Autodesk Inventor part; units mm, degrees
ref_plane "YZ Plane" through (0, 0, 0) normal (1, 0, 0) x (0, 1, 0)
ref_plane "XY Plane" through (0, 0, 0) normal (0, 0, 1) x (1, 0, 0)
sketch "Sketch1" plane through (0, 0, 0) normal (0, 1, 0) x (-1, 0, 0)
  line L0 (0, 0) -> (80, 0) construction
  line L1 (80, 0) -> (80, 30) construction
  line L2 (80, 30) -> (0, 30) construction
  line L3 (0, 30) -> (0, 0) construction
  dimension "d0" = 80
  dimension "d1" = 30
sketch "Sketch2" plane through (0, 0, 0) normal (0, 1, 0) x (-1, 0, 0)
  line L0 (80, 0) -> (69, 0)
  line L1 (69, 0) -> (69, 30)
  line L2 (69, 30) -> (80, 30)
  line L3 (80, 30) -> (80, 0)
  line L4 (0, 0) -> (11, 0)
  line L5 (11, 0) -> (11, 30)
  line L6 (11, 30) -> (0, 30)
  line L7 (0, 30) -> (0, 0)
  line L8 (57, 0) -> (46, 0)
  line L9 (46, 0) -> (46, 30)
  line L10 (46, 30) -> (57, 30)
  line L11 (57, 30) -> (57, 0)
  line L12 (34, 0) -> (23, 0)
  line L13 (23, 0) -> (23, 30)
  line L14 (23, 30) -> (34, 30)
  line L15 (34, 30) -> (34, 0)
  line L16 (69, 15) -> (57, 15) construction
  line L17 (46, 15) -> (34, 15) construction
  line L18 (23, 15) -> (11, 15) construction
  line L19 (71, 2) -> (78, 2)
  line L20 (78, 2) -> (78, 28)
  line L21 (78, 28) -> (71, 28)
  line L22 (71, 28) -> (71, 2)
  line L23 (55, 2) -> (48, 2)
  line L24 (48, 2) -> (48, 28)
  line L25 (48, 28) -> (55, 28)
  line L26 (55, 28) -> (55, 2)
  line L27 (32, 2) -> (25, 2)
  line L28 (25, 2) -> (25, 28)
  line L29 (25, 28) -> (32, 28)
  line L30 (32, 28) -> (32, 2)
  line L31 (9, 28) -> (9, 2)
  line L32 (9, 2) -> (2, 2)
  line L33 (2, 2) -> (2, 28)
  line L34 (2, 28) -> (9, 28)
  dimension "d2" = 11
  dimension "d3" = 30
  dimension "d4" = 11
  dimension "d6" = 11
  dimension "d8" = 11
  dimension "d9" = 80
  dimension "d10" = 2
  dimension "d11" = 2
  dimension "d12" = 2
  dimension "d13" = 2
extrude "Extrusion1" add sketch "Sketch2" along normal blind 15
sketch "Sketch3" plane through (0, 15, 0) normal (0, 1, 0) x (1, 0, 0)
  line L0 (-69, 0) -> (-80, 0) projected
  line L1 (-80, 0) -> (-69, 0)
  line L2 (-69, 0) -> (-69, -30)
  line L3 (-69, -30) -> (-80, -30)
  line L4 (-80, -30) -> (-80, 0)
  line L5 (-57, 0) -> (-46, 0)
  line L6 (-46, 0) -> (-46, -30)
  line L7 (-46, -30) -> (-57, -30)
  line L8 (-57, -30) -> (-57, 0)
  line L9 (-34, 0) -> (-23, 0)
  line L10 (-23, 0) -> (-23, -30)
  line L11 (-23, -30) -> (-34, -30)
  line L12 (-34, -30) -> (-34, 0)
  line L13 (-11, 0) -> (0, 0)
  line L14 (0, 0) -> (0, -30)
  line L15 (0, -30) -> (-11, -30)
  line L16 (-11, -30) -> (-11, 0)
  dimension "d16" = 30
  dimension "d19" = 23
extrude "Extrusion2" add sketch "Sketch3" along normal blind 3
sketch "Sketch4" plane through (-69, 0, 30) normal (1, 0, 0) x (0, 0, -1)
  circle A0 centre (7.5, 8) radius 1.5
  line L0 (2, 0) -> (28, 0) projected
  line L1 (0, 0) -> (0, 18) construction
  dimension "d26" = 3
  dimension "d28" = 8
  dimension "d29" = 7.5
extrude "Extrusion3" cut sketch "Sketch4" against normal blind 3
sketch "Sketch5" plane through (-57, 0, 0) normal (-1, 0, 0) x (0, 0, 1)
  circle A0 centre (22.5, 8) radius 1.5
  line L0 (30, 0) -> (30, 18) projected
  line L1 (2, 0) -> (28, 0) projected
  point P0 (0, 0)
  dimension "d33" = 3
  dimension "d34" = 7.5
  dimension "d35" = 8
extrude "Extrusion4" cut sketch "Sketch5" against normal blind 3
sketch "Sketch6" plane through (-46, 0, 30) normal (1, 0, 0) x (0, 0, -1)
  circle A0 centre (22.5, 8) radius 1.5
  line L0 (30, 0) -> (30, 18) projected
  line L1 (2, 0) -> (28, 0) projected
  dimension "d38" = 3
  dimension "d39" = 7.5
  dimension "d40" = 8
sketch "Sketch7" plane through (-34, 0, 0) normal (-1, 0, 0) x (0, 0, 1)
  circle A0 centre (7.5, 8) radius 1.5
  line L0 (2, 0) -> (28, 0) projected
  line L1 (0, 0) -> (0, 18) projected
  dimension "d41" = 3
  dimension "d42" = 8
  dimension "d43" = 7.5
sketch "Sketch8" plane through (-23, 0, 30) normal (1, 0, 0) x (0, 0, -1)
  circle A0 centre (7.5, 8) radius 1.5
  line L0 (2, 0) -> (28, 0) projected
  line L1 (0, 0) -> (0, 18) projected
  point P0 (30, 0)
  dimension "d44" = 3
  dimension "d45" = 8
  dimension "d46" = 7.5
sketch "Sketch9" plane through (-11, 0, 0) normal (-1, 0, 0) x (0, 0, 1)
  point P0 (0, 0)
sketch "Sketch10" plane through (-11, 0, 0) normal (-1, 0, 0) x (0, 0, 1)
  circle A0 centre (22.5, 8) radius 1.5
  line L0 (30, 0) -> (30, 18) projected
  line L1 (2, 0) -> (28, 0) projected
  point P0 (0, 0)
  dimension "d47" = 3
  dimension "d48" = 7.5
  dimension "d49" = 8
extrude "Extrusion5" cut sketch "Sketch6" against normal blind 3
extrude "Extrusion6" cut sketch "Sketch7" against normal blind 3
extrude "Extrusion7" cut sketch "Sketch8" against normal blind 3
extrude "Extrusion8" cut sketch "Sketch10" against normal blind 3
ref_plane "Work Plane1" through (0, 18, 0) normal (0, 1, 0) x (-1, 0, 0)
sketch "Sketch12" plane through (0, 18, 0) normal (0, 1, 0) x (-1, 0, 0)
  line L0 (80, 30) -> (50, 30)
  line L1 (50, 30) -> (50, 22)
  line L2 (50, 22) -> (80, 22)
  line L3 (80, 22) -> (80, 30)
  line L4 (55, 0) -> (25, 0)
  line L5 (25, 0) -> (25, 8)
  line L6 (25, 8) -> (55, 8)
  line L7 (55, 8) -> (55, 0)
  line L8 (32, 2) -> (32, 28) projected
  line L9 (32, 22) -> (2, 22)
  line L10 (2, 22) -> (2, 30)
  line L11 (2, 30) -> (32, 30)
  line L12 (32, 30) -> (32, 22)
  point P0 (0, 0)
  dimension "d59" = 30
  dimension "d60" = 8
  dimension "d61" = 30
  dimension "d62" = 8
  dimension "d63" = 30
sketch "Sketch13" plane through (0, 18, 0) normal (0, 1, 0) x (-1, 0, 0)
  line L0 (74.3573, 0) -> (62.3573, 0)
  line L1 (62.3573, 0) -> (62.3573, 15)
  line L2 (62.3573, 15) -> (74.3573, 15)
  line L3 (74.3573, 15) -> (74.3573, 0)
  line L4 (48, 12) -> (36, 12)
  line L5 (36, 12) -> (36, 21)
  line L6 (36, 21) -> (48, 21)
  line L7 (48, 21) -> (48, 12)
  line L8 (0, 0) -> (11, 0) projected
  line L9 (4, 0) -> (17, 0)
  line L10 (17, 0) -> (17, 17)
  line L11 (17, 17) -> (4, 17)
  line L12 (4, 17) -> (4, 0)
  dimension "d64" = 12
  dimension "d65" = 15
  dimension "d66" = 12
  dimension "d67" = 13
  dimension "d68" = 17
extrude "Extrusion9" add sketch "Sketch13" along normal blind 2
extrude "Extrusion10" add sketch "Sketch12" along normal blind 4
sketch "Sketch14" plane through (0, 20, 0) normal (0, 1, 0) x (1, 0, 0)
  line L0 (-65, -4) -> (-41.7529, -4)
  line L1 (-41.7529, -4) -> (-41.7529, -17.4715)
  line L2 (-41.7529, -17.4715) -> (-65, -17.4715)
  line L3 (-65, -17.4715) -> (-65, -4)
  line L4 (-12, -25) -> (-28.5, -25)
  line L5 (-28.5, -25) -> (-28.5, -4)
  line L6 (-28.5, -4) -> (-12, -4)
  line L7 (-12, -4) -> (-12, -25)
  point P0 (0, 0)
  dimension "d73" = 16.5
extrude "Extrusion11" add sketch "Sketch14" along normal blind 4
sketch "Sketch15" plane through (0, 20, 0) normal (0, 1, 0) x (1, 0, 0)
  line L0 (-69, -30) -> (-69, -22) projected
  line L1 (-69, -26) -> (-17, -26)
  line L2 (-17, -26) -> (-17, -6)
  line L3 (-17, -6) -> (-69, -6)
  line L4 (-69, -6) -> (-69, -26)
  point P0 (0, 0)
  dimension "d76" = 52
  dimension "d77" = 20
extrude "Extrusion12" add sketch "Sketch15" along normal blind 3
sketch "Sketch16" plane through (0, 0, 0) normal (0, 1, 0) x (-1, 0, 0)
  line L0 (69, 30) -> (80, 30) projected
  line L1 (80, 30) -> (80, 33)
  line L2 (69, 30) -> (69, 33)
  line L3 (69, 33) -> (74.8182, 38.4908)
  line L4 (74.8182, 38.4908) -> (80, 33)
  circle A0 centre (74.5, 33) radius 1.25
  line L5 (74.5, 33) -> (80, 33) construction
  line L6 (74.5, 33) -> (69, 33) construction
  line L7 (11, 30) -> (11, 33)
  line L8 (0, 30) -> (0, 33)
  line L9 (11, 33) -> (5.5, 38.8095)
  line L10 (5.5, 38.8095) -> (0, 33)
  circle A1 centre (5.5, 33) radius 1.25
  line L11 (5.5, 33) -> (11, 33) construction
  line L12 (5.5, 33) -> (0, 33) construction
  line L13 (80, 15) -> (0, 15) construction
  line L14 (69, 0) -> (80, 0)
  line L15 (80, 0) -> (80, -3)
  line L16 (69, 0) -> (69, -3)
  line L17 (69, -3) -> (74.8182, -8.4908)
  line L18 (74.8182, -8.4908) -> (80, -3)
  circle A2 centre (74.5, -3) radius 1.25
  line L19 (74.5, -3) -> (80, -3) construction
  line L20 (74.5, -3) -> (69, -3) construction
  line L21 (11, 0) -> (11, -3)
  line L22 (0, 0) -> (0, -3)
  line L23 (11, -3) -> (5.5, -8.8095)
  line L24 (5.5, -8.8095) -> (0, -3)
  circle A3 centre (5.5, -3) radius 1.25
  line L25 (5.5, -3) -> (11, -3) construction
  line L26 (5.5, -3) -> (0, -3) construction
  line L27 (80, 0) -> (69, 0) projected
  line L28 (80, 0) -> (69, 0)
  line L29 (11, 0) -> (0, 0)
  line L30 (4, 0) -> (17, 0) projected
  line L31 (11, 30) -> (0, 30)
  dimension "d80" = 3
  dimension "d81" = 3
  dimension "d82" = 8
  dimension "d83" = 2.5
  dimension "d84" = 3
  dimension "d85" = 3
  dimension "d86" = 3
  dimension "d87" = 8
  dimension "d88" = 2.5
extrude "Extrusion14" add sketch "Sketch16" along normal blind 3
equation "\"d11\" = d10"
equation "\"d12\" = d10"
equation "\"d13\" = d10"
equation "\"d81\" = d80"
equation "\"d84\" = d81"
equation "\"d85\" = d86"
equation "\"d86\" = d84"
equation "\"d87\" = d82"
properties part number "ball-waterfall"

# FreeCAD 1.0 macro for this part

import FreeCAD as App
import Part
import Sketcher
from FreeCAD import Vector
Q = App.Units.Quantity


def add_polygon(sketch, points):
    """Adds a closed chain of lines whose ends are joined by coincident constraints."""
    first, n = sketch.GeometryCount, len(points)
    for a, b in zip(points, points[1:] + points[:1]):
        sketch.addGeometry(Part.LineSegment(App.Vector(*a, 0), App.Vector(*b, 0)), False)
    for i in range(n):
        sketch.addConstraint(Sketcher.Constraint("Coincident", first + i, 2, first + (i + 1) % n, 1))

doc = App.newDocument("Part")
body = doc.addObject("PartDesign::Body", "Body")
body.AllowCompound = True

# Sketch on XZ plane
sketch1 = body.newObject("Sketcher::SketchObject", "Sketch")
sketch1.AttachmentSupport = (doc.getObject("XZ_Plane"), [""])
sketch1.MapMode = "FlatFace"
add_polygon(sketch1, [(-69, 0), (-80, 0), (-80, 30), (-69, 30)])  # lines 0-3
add_polygon(sketch1, [(-78, 2), (-71, 2), (-71, 28), (-78, 28)])  # lines 4-7
add_polygon(sketch1, [(0, 30), (0, 0), (-11, 0), (-11, 30)])  # lines 8-11
add_polygon(sketch1, [(-2, 28), (-9, 28), (-9, 2), (-2, 2)])  # lines 12-15
add_polygon(sketch1, [(-46, 0), (-57, 0), (-57, 30), (-46, 30)])  # lines 16-19
add_polygon(sketch1, [(-55, 28), (-55, 2), (-48, 2), (-48, 28)])  # lines 20-23
add_polygon(sketch1, [(-23, 0), (-34, 0), (-34, 30), (-23, 30)])  # lines 24-27
add_polygon(sketch1, [(-32, 28), (-32, 2), (-25, 2), (-25, 28)])  # lines 28-31
sketch1.addConstraint([
    Sketcher.Constraint("Horizontal", 0),
    Sketcher.Constraint("Vertical", 1),
    Sketcher.Constraint("Horizontal", 2),
    Sketcher.Constraint("Vertical", 3),
    Sketcher.Constraint("Horizontal", 4),
    Sketcher.Constraint("Vertical", 5),
    Sketcher.Constraint("Horizontal", 6),
    Sketcher.Constraint("Vertical", 7),
    Sketcher.Constraint("Vertical", 8),
    Sketcher.Constraint("Horizontal", 9),
    Sketcher.Constraint("Vertical", 10),
    Sketcher.Constraint("Horizontal", 11),
    Sketcher.Constraint("Horizontal", 12),
    Sketcher.Constraint("Vertical", 13),
    Sketcher.Constraint("Horizontal", 14),
    Sketcher.Constraint("Vertical", 15),
    Sketcher.Constraint("Horizontal", 16),
    Sketcher.Constraint("Vertical", 17),
    Sketcher.Constraint("Horizontal", 18),
    Sketcher.Constraint("Vertical", 19),
    Sketcher.Constraint("Vertical", 20),
    Sketcher.Constraint("Horizontal", 21),
    Sketcher.Constraint("Vertical", 22),
    Sketcher.Constraint("Horizontal", 23),
    Sketcher.Constraint("Horizontal", 24),
    Sketcher.Constraint("Vertical", 25),
    Sketcher.Constraint("Horizontal", 26),
    Sketcher.Constraint("Vertical", 27),
    Sketcher.Constraint("Vertical", 28),
    Sketcher.Constraint("Horizontal", 29),
    Sketcher.Constraint("Vertical", 30),
    Sketcher.Constraint("Horizontal", 31),
    Sketcher.Constraint("Coincident", 8, 2, -1, 1),
    Sketcher.Constraint("PointOnObject", 0, 2, -1),
    Sketcher.Constraint("PointOnObject", 16, 2, -1),
    Sketcher.Constraint("PointOnObject", 24, 2, -1),
    Sketcher.Constraint("Horizontal", 2, 2, 10, 2),
    Sketcher.Constraint("Horizontal", 6, 2, 12, 2),
    Sketcher.Constraint("Horizontal", 7, 2, 13, 2),
    Sketcher.Constraint("Horizontal", 11, 2, 17, 2),
    Sketcher.Constraint("Horizontal", 14, 2, 20, 2),
    Sketcher.Constraint("Horizontal", 15, 2, 22, 2),
    Sketcher.Constraint("Horizontal", 18, 2, 25, 2),
    Sketcher.Constraint("Horizontal", 21, 2, 28, 2),
    Sketcher.Constraint("Horizontal", 23, 2, 30, 2),
    Sketcher.Constraint("Equal", 2, 9),
    Sketcher.Constraint("Equal", 6, 12),
    Sketcher.Constraint("Equal", 11, 16),
    Sketcher.Constraint("Equal", 14, 21),
    Sketcher.Constraint("Equal", 18, 24),
    Sketcher.Constraint("Equal", 23, 29),
    Sketcher.Constraint("DistanceX", 0, 2, 0, 1, Q("11 mm")),
    Sketcher.Constraint("DistanceY", 1, 1, 1, 2, Q("30 mm")),
    Sketcher.Constraint("DistanceX", 0, 2, -1, 1, Q("80 mm")),
    Sketcher.Constraint("DistanceY", -1, 1, 4, 2, Q("2 mm")),
    Sketcher.Constraint("DistanceX", 14, 2, -1, 1, Q("2 mm")),
    Sketcher.Constraint("DistanceX", 4, 2, 3, 2, Q("2 mm")),
    Sketcher.Constraint("DistanceY", 5, 2, 2, 2, Q("2 mm")),
    Sketcher.Constraint("DistanceX", 1, 2, 6, 2, Q("2 mm")),
    Sketcher.Constraint("DistanceX", 16, 2, 20, 2, Q("2 mm")),
    Sketcher.Constraint("DistanceX", 24, 2, 28, 2, Q("2 mm")),
    Sketcher.Constraint("DistanceX", 16, 2, -1, 1, Q("57 mm")),
    Sketcher.Constraint("DistanceX", 24, 2, -1, 1, Q("34 mm")),
])
pad1 = body.newObject("PartDesign::Pad", "Pad")
pad1.Profile = sketch1
pad1.Length = 15
pad1.Reversed = True

# Sketch on XZ plane
sketch2 = body.newObject("Sketcher::SketchObject", "Sketch001")
sketch2.AttachmentSupport = (doc.getObject("XZ_Plane"), [""])
sketch2.MapMode = "FlatFace"
sketch2.AttachmentOffset = App.Placement(Vector(0, 0, -15), App.Rotation())
add_polygon(sketch2, [(-69, 30), (-69, 0), (-80, 0), (-80, 30)])  # lines 0-3
add_polygon(sketch2, [(-46, 0), (-57, 0), (-57, 30), (-46, 30)])  # lines 4-7
add_polygon(sketch2, [(-23, 0), (-34, 0), (-34, 30), (-23, 30)])  # lines 8-11
add_polygon(sketch2, [(0, 0), (-11, 0), (-11, 30), (0, 30)])  # lines 12-15
sketch2.addConstraint([
    Sketcher.Constraint("Vertical", 0),
    Sketcher.Constraint("Horizontal", 1),
    Sketcher.Constraint("Vertical", 2),
    Sketcher.Constraint("Horizontal", 3),
    Sketcher.Constraint("Horizontal", 4),
    Sketcher.Constraint("Vertical", 5),
    Sketcher.Constraint("Horizontal", 6),
    Sketcher.Constraint("Vertical", 7),
    Sketcher.Constraint("Horizontal", 8),
    Sketcher.Constraint("Vertical", 9),
    Sketcher.Constraint("Horizontal", 10),
    Sketcher.Constraint("Vertical", 11),
    Sketcher.Constraint("Horizontal", 12),
    Sketcher.Constraint("Vertical", 13),
    Sketcher.Constraint("Horizontal", 14),
    Sketcher.Constraint("Vertical", 15),
    Sketcher.Constraint("Coincident", 15, 2, -1, 1),
    Sketcher.Constraint("PointOnObject", 0, 2, -1),
    Sketcher.Constraint("PointOnObject", 4, 2, -1),
    Sketcher.Constraint("PointOnObject", 8, 2, -1),
    Sketcher.Constraint("Horizontal", 3, 2, 5, 2),
    Sketcher.Constraint("Horizontal", 6, 2, 9, 2),
    Sketcher.Constraint("Horizontal", 10, 2, 13, 2),
    Sketcher.Constraint("Equal", 3, 4),
    Sketcher.Constraint("Equal", 6, 8),
    Sketcher.Constraint("Equal", 10, 12),
    Sketcher.Constraint("DistanceY", 0, 2, 0, 1, Q("30 mm")),
    Sketcher.Constraint("DistanceX", 10, 2, -1, 1, Q("23 mm")),
    Sketcher.Constraint("DistanceX", 1, 2, 4, 2, Q("23 mm")),
    Sketcher.Constraint("DistanceX", 4, 2, 8, 2, Q("23 mm")),
    Sketcher.Constraint("DistanceX", 1, 2, 1, 1, Q("11 mm")),
])
pad2 = body.newObject("PartDesign::Pad", "Pad001")
pad2.Profile = sketch2
pad2.Length = 3
pad2.Reversed = True

# Sketch on YZ plane
sketch3 = body.newObject("Sketcher::SketchObject", "Sketch002")
sketch3.AttachmentSupport = (doc.getObject("YZ_Plane"), [""])
sketch3.MapMode = "FlatFace"
sketch3.AttachmentOffset = App.Placement(Vector(0, 0, -69), App.Rotation())
sketch3.addGeometry(Part.Circle(Vector(8, 22.5, 0), Vector(0, 0, 1), 1.5), False)
sketch3.addConstraint([
    Sketcher.Constraint("Diameter", 0, Q("3 mm")),
    Sketcher.Constraint("DistanceX", -1, 1, 0, 3, Q("8 mm")),
    Sketcher.Constraint("DistanceY", -1, 1, 0, 3, Q("22.5 mm")),
])
pocket1 = body.newObject("PartDesign::Pocket", "Pocket")
pocket1.Profile = sketch3
pocket1.Length = 3

# Sketch on YZ plane
sketch4 = body.newObject("Sketcher::SketchObject", "Sketch003")
sketch4.AttachmentSupport = (doc.getObject("YZ_Plane"), [""])
sketch4.MapMode = "FlatFace"
sketch4.AttachmentOffset = App.Placement(Vector(0, 0, -57), App.Rotation())
sketch4.addGeometry(Part.Circle(Vector(8, 22.5, 0), Vector(0, 0, 1), 1.5), False)
sketch4.addConstraint([
    Sketcher.Constraint("Diameter", 0, Q("3 mm")),
    Sketcher.Constraint("DistanceX", -1, 1, 0, 3, Q("8 mm")),
    Sketcher.Constraint("DistanceY", -1, 1, 0, 3, Q("22.5 mm")),
])
pocket2 = body.newObject("PartDesign::Pocket", "Pocket001")
pocket2.Profile = sketch4
pocket2.Length = 3
pocket2.Reversed = True

# Sketch on YZ plane
sketch5 = body.newObject("Sketcher::SketchObject", "Sketch004")
sketch5.AttachmentSupport = (doc.getObject("YZ_Plane"), [""])
sketch5.MapMode = "FlatFace"
sketch5.AttachmentOffset = App.Placement(Vector(0, 0, -46), App.Rotation())
sketch5.addGeometry(Part.Circle(Vector(8, 7.5, 0), Vector(0, 0, 1), 1.5), False)
sketch5.addConstraint([
    Sketcher.Constraint("Diameter", 0, Q("3 mm")),
    Sketcher.Constraint("DistanceX", -1, 1, 0, 3, Q("8 mm")),
    Sketcher.Constraint("DistanceY", -1, 1, 0, 3, Q("7.5 mm")),
])
pocket3 = body.newObject("PartDesign::Pocket", "Pocket002")
pocket3.Profile = sketch5
pocket3.Length = 3

# Sketch on YZ plane
sketch6 = body.newObject("Sketcher::SketchObject", "Sketch005")
sketch6.AttachmentSupport = (doc.getObject("YZ_Plane"), [""])
sketch6.MapMode = "FlatFace"
sketch6.AttachmentOffset = App.Placement(Vector(0, 0, -34), App.Rotation())
sketch6.addGeometry(Part.Circle(Vector(8, 7.5, 0), Vector(0, 0, 1), 1.5), False)
sketch6.addConstraint([
    Sketcher.Constraint("Diameter", 0, Q("3 mm")),
    Sketcher.Constraint("DistanceX", -1, 1, 0, 3, Q("8 mm")),
    Sketcher.Constraint("DistanceY", -1, 1, 0, 3, Q("7.5 mm")),
])
pocket4 = body.newObject("PartDesign::Pocket", "Pocket003")
pocket4.Profile = sketch6
pocket4.Length = 3
pocket4.Reversed = True

# Sketch on YZ plane
sketch7 = body.newObject("Sketcher::SketchObject", "Sketch006")
sketch7.AttachmentSupport = (doc.getObject("YZ_Plane"), [""])
sketch7.MapMode = "FlatFace"
sketch7.AttachmentOffset = App.Placement(Vector(0, 0, -23), App.Rotation())
sketch7.addGeometry(Part.Circle(Vector(8, 22.5, 0), Vector(0, 0, 1), 1.5), False)
sketch7.addConstraint([
    Sketcher.Constraint("Diameter", 0, Q("3 mm")),
    Sketcher.Constraint("DistanceX", -1, 1, 0, 3, Q("8 mm")),
    Sketcher.Constraint("DistanceY", -1, 1, 0, 3, Q("22.5 mm")),
])
pocket5 = body.newObject("PartDesign::Pocket", "Pocket004")
pocket5.Profile = sketch7
pocket5.Length = 3

# Sketch on YZ plane
sketch8 = body.newObject("Sketcher::SketchObject", "Sketch007")
sketch8.AttachmentSupport = (doc.getObject("YZ_Plane"), [""])
sketch8.MapMode = "FlatFace"
sketch8.AttachmentOffset = App.Placement(Vector(0, 0, -11), App.Rotation())
sketch8.addGeometry(Part.Circle(Vector(8, 22.5, 0), Vector(0, 0, 1), 1.5), False)
sketch8.addConstraint([
    Sketcher.Constraint("Diameter", 0, Q("3 mm")),
    Sketcher.Constraint("DistanceX", -1, 1, 0, 3, Q("8 mm")),
    Sketcher.Constraint("DistanceY", -1, 1, 0, 3, Q("22.5 mm")),
])
pocket6 = body.newObject("PartDesign::Pocket", "Pocket005")
pocket6.Profile = sketch8
pocket6.Length = 3
pocket6.Reversed = True

# Sketch on XZ plane
sketch9 = body.newObject("Sketcher::SketchObject", "Sketch008")
sketch9.AttachmentSupport = (doc.getObject("XZ_Plane"), [""])
sketch9.MapMode = "FlatFace"
sketch9.AttachmentOffset = App.Placement(Vector(0, 0, -18), App.Rotation())
add_polygon(sketch9, [(-62.3573, 0), (-74.3573, 0), (-74.3573, 15), (-62.3573, 15)])  # lines 0-3
add_polygon(sketch9, [(-36, 12), (-48, 12), (-48, 21), (-36, 21)])  # lines 4-7
add_polygon(sketch9, [(-4, 17), (-4, 0), (-17, 0), (-17, 17)])  # lines 8-11
sketch9.addConstraint([
    Sketcher.Constraint("Horizontal", 0),
    Sketcher.Constraint("Vertical", 1),
    Sketcher.Constraint("Horizontal", 2),
    Sketcher.Constraint("Vertical", 3),
    Sketcher.Constraint("Horizontal", 4),
    Sketcher.Constraint("Vertical", 5),
    Sketcher.Constraint("Horizontal", 6),
    Sketcher.Constraint("Vertical", 7),
    Sketcher.Constraint("Vertical", 8),
    Sketcher.Constraint("Horizontal", 9),
    Sketcher.Constraint("Vertical", 10),
    Sketcher.Constraint("Horizontal", 11),
    Sketcher.Constraint("PointOnObject", 0, 2, -1),
    Sketcher.Constraint("PointOnObject", 8, 2, -1),
    Sketcher.Constraint("Equal", 2, 4),
    Sketcher.Constraint("DistanceX", 0, 2, 0, 1, Q("12 mm")),
    Sketcher.Constraint("DistanceX", 9, 2, 9, 1, Q("13 mm")),
    Sketcher.Constraint("DistanceY", 1, 1, 1, 2, Q("15 mm")),
    Sketcher.Constraint("DistanceY", 8, 2, 8, 1, Q("17 mm")),
    Sketcher.Constraint("DistanceY", -1, 1, 4, 2, Q("12 mm")),
    Sketcher.Constraint("DistanceX", 9, 2, -1, 1, Q("17 mm")),
    Sketcher.Constraint("DistanceY", 5, 1, 5, 2, Q("9 mm")),
    Sketcher.Constraint("DistanceX", 4, 2, -1, 1, Q("48 mm")),
    Sketcher.Constraint("DistanceX", 0, 2, -1, 1, Q("74.3573 mm")),
])
pad3 = body.newObject("PartDesign::Pad", "Pad002")
pad3.Profile = sketch9
pad3.Length = 2
pad3.Reversed = True

# Sketch on XZ plane
sketch10 = body.newObject("Sketcher::SketchObject", "Sketch009")
sketch10.AttachmentSupport = (doc.getObject("XZ_Plane"), [""])
sketch10.MapMode = "FlatFace"
sketch10.AttachmentOffset = App.Placement(Vector(0, 0, -18), App.Rotation())
add_polygon(sketch10, [(-80, 22), (-80, 30), (-50, 30), (-50, 22)])  # lines 0-3
add_polygon(sketch10, [(-2, 22), (-32, 22), (-32, 30), (-2, 30)])  # lines 4-7
add_polygon(sketch10, [(-25, 0), (-55, 0), (-55, 8), (-25, 8)])  # lines 8-11
sketch10.addConstraint([
    Sketcher.Constraint("Vertical", 0),
    Sketcher.Constraint("Horizontal", 1),
    Sketcher.Constraint("Vertical", 2),
    Sketcher.Constraint("Horizontal", 3),
    Sketcher.Constraint("Horizontal", 4),
    Sketcher.Constraint("Vertical", 5),
    Sketcher.Constraint("Horizontal", 6),
    Sketcher.Constraint("Vertical", 7),
    Sketcher.Constraint("Horizontal", 8),
    Sketcher.Constraint("Vertical", 9),
    Sketcher.Constraint("Horizontal", 10),
    Sketcher.Constraint("Vertical", 11),
    Sketcher.Constraint("PointOnObject", 8, 2, -1),
    Sketcher.Constraint("Horizontal", 3, 2, 4, 2),
    Sketcher.Constraint("Horizontal", 1, 2, 5, 2),
    Sketcher.Constraint("Equal", 3, 4),
    Sketcher.Constraint("Equal", 6, 8),
    Sketcher.Constraint("Equal", 7, 9),
    Sketcher.Constraint("DistanceX", 1, 1, 1, 2, Q("30 mm")),
    Sketcher.Constraint("DistanceY", 0, 1, 0, 2, Q("8 mm")),
    Sketcher.Constraint("DistanceY", -1, 1, 0, 2, Q("30 mm")),
    Sketcher.Constraint("DistanceX", 0, 2, -1, 1, Q("80 mm")),
    Sketcher.Constraint("DistanceX", 4, 2, -1, 1, Q("32 mm")),
    Sketcher.Constraint("DistanceX", 8, 2, -1, 1, Q("55 mm")),
])
pad4 = body.newObject("PartDesign::Pad", "Pad003")
pad4.Profile = sketch10
pad4.Length = 4
pad4.Reversed = True

# Sketch on XZ plane
sketch11 = body.newObject("Sketcher::SketchObject", "Sketch010")
sketch11.AttachmentSupport = (doc.getObject("XZ_Plane"), [""])
sketch11.MapMode = "FlatFace"
sketch11.AttachmentOffset = App.Placement(Vector(0, 0, -20), App.Rotation())
add_polygon(sketch11, [(-41.7529, 4), (-65, 4), (-65, 17.4715), (-41.7529, 17.4715)])  # lines 0-3
add_polygon(sketch11, [(-28.5, 25), (-12, 25), (-12, 4), (-28.5, 4)])  # lines 4-7
sketch11.addConstraint([
    Sketcher.Constraint("Horizontal", 0),
    Sketcher.Constraint("Vertical", 1),
    Sketcher.Constraint("Horizontal", 2),
    Sketcher.Constraint("Vertical", 3),
    Sketcher.Constraint("Horizontal", 4),
    Sketcher.Constraint("Vertical", 5),
    Sketcher.Constraint("Horizontal", 6),
    Sketcher.Constraint("Vertical", 7),
    Sketcher.Constraint("Horizontal", 3, 2, 5, 2),
    Sketcher.Constraint("DistanceX", 4, 1, 4, 2, Q("16.5 mm")),
    Sketcher.Constraint("DistanceY", 5, 2, 5, 1, Q("21 mm")),
    Sketcher.Constraint("DistanceX", 0, 2, -1, 1, Q("65 mm")),
    Sketcher.Constraint("DistanceY", -1, 1, 0, 2, Q("4 mm")),
    Sketcher.Constraint("DistanceX", 4, 2, -1, 1, Q("12 mm")),
    Sketcher.Constraint("DistanceX", 0, 2, 0, 1, Q("23.247 mm")),
    Sketcher.Constraint("DistanceY", 1, 1, 1, 2, Q("13.4715 mm")),
])
pad5 = body.newObject("PartDesign::Pad", "Pad004")
pad5.Profile = sketch11
pad5.Length = 4
pad5.Reversed = True

# Sketch on XZ plane
sketch12 = body.newObject("Sketcher::SketchObject", "Sketch011")
sketch12.AttachmentSupport = (doc.getObject("XZ_Plane"), [""])
sketch12.MapMode = "FlatFace"
sketch12.AttachmentOffset = App.Placement(Vector(0, 0, -20), App.Rotation())
add_polygon(sketch12, [(-69, 6), (-69, 26), (-17, 26), (-17, 6)])  # lines 0-3
sketch12.addConstraint([
    Sketcher.Constraint("Vertical", 0),
    Sketcher.Constraint("Horizontal", 1),
    Sketcher.Constraint("Vertical", 2),
    Sketcher.Constraint("Horizontal", 3),
    Sketcher.Constraint("DistanceX", 1, 1, 1, 2, Q("52 mm")),
    Sketcher.Constraint("DistanceY", 0, 1, 0, 2, Q("20 mm")),
    Sketcher.Constraint("DistanceX", 0, 2, -1, 1, Q("69 mm")),
    Sketcher.Constraint("DistanceY", -1, 1, 0, 2, Q("26 mm")),
])
pad6 = body.newObject("PartDesign::Pad", "Pad005")
pad6.Profile = sketch12
pad6.Length = 3
pad6.Reversed = True

# Sketch on XZ plane
sketch13 = body.newObject("Sketcher::SketchObject", "Sketch012")
sketch13.AttachmentSupport = (doc.getObject("XZ_Plane"), [""])
sketch13.MapMode = "FlatFace"
add_polygon(sketch13, [(-69, 33), (-69, 30), (-80, 30), (-80, 33), (-74.8182, 38.4908)])  # lines 0-4
sketch13.addGeometry(Part.Circle(Vector(-74.5, 33, 0), Vector(0, 0, 1), 1.25), False)  # 5
add_polygon(sketch13, [(0, 30), (-11, 30), (-11, 33), (-5.5, 38.8095), (0, 33)])  # lines 6-10
sketch13.addGeometry(Part.Circle(Vector(-5.5, 33, 0), Vector(0, 0, 1), 1.25), False)  # 11
add_polygon(sketch13, [(-80, 0), (-69, 0), (-69, -3), (-74.8182, -8.4908), (-80, -3)])  # lines 12-16
sketch13.addGeometry(Part.Circle(Vector(-74.5, -3, 0), Vector(0, 0, 1), 1.25), False)  # 17
add_polygon(sketch13, [(-11, -3), (-11, 0), (0, 0), (0, -3), (-5.5, -8.8095)])  # lines 18-22
sketch13.addGeometry(Part.Circle(Vector(-5.5, -3, 0), Vector(0, 0, 1), 1.25), False)  # 23
sketch13.addConstraint([
    Sketcher.Constraint("Vertical", 0),
    Sketcher.Constraint("Horizontal", 1),
    Sketcher.Constraint("Vertical", 2),
    Sketcher.Constraint("Horizontal", 6),
    Sketcher.Constraint("Vertical", 7),
    Sketcher.Constraint("Vertical", 10),
    Sketcher.Constraint("Horizontal", 12),
    Sketcher.Constraint("Vertical", 13),
    Sketcher.Constraint("Vertical", 16),
    Sketcher.Constraint("Vertical", 18),
    Sketcher.Constraint("Horizontal", 19),
    Sketcher.Constraint("Vertical", 20),
    Sketcher.Constraint("Coincident", 19, 2, -1, 1),
    Sketcher.Constraint("Equal", 5, 11),
    Sketcher.Constraint("Equal", 11, 17),
    Sketcher.Constraint("Equal", 17, 23),
    Sketcher.Constraint("PointOnObject", 9, 2, -2),
    Sketcher.Constraint("PointOnObject", 12, 2, -1),
    Sketcher.Constraint("Perpendicular", 3, 4),
    Sketcher.Constraint("Perpendicular", 14, 15),
    Sketcher.Constraint("Parallel", 8, 21),
    Sketcher.Constraint("Parallel", 9, 22),
    Sketcher.Constraint("Horizontal", 5, 3, 11, 3),
    Sketcher.Constraint("Horizontal", 17, 3, 23, 3),
    Sketcher.Constraint("Horizontal", 11, 3, 2, 2),
    Sketcher.Constraint("Horizontal", 2, 2, 4, 2),
    Sketcher.Constraint("Horizontal", 1, 2, 6, 2),
    Sketcher.Constraint("Horizontal", 4, 2, 7, 2),
    Sketcher.Constraint("Horizontal", 7, 2, 9, 2),
    Sketcher.Constraint("Horizontal", 23, 3, 13, 2),
    Sketcher.Constraint("Horizontal", 13, 2, 15, 2),
    Sketcher.Constraint("Horizontal", 15, 2, 20, 2),
    Sketcher.Constraint("Horizontal", 20, 2, 22, 2),
    Sketcher.Constraint("Vertical", 5, 3, 17, 3),
    Sketcher.Constraint("Vertical", 11, 3, 23, 3),
    Sketcher.Constraint("Vertical", 23, 3, 8, 2),
    Sketcher.Constraint("Vertical", 4, 2, 12, 2),
    Sketcher.Constraint("Vertical", 3, 2, 14, 2),
    Sketcher.Constraint("Vertical", 2, 2, 15, 2),
    Sketcher.Constraint("Vertical", 7, 2, 18, 2),
    Sketcher.Constraint("Vertical", 8, 2, 21, 2),
    Sketcher.Constraint("Equal", 1, 6),
    Sketcher.Constraint("Equal", 10, 13),
    Sketcher.Constraint("Equal", 4, 8),
    Sketcher.Constraint("Diameter", 5, Q("2.5 mm")),
    Sketcher.Constraint("DistanceY", 0, 2, 0, 1, Q("3 mm")),
    Sketcher.Constraint("Distance", 4, Q("8 mm")),
    Sketcher.Constraint("DistanceX", 1, 2, 1, 1, Q("11 mm")),
    Sketcher.Constraint("DistanceY", -1, 1, 5, 3, Q("33 mm")),
    Sketcher.Constraint("DistanceX", 0, 2, -1, 1, Q("69 mm")),
    Sketcher.Constraint("DistanceX", 5, 3, 11, 3, Q("69 mm")),
])
pad7 = body.newObject("PartDesign::Pad", "Pad006")
pad7.Profile = sketch13
pad7.Length = 3
pad7.Reversed = True

doc.recompute()
